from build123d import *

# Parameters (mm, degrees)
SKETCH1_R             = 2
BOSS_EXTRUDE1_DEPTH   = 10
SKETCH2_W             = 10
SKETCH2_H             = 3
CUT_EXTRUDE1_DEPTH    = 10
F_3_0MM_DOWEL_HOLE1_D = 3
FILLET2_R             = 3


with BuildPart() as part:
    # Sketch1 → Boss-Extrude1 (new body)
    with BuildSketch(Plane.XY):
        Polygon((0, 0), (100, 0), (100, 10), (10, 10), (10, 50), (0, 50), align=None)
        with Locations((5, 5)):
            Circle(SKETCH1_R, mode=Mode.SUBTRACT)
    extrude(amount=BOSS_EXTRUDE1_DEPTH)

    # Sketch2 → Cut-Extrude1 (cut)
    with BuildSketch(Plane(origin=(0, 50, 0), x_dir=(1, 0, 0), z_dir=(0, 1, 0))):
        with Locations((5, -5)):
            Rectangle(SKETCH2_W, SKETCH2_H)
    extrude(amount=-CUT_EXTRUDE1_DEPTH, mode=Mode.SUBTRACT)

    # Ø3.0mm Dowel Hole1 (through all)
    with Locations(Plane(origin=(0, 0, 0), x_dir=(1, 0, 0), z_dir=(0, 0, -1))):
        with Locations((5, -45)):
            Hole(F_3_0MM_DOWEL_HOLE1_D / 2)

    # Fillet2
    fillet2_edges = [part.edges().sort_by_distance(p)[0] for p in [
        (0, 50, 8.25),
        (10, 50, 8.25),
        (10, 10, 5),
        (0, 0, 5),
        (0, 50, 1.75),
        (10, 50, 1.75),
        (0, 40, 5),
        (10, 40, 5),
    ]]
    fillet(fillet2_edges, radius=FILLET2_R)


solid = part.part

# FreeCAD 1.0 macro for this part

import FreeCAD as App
import Part
import Sketcher


def edges_at(feature, points):
    """Names of the edges that pass closest to the given points."""
    edges = feature.Shape.Edges
    near = lambda p: min(range(len(edges)), key=lambda i: edges[i].distToShape(Part.Vertex(*p))[0])
    return sorted({f"Edge{near(p) + 1}" for p in points})


def add_polygon(sketch, points):
    """Adds a closed chain of lines whose ends are joined by coincident constraints."""
    first, n = sketch.GeometryCount, len(points)
    for a, b in zip(points, points[1:] + points[:1]):
        sketch.addGeometry(Part.LineSegment(App.Vector(*a, 0), App.Vector(*b, 0)), False)
    for i in range(n):
        sketch.addConstraint(Sketcher.Constraint("Coincident", first + i, 2, first + (i + 1) % n, 1))

doc = App.newDocument("Part")
body = doc.addObject("PartDesign::Body", "Body")

sketch1 = doc.addObject("Sketcher::SketchObject", "Sketch")
body.addObject(sketch1)
sketch1.AttachmentSupport = (doc.XY_Plane, [""])
sketch1.MapMode = "FlatFace"
add_polygon(sketch1, [(0, 0), (100, 0), (100, 10), (10, 10), (10, 50), (0, 50)])
sketch1.addGeometry(Part.Circle(App.Vector(5, 5, 0), App.Vector(0, 0, 1), 2), False)
sketch1.addConstraint([
    Sketcher.Constraint("Horizontal", 0),
    Sketcher.Constraint("Vertical", 1),
    Sketcher.Constraint("Horizontal", 2),
    Sketcher.Constraint("Vertical", 3),
    Sketcher.Constraint("Horizontal", 4),
    Sketcher.Constraint("Vertical", 5),
    Sketcher.Constraint("Coincident", 5, 2, -1, 1),
    Sketcher.Constraint("Equal", 4, 1),
    Sketcher.Constraint("Diameter", 6, 4.0),
    Sketcher.Constraint("DistanceX", 0, 1, 0, 2, 100.0),
    Sketcher.Constraint("DistanceX", 2, 2, 2, 1, 90.0),
    Sketcher.Constraint("DistanceY", 3, 1, 3, 2, 40.0),
    Sketcher.Constraint("DistanceX", -1, 1, 6, 3, 5.0),
    Sketcher.Constraint("DistanceY", -1, 1, 6, 3, 5.0),
])
pad1 = doc.addObject("PartDesign::Pad", "Pad")
body.addObject(pad1)
pad1.Profile = sketch1
pad1.Length = 10

sketch2 = doc.addObject("Sketcher::SketchObject", "Sketch001")
body.addObject(sketch2)
sketch2.AttachmentSupport = (doc.XZ_Plane, [""])
sketch2.MapMode = "FlatFace"
sketch2.AttachmentOffset = App.Placement(App.Vector(0, 0, -50), App.Rotation())
add_polygon(sketch2, [(0, 3.5), (0, 6.5), (10, 6.5), (10, 3.5)])
sketch2.addConstraint([
    Sketcher.Constraint("Vertical", 0),
    Sketcher.Constraint("Horizontal", 1),
    Sketcher.Constraint("Vertical", 2),
    Sketcher.Constraint("Horizontal", 3),
    Sketcher.Constraint("PointOnObject", 0, 2, -2),
    Sketcher.Constraint("DistanceX", 1, 1, 1, 2, 10.0),
    Sketcher.Constraint("DistanceY", 0, 1, 0, 2, 3.0),
    Sketcher.Constraint("DistanceY", -1, 1, 0, 2, 6.5),
])
pocket1 = doc.addObject("PartDesign::Pocket", "Pocket")
body.addObject(pocket1)
pocket1.Profile = sketch2
pocket1.Length = 10
pocket1.Reversed = True

sketch3 = doc.addObject("Sketcher::SketchObject", "Sketch002")
body.addObject(sketch3)
sketch3.AttachmentSupport = (doc.XY_Plane, [""])
sketch3.MapMode = "FlatFace"
sketch3.addGeometry(Part.Circle(App.Vector(5, 45, 0), App.Vector(0, 0, 1), 1.5), False)
sketch3.addConstraint([
    Sketcher.Constraint("Diameter", 0, 3.0),
    Sketcher.Constraint("DistanceX", -1, 1, 0, 3, 5.0),
    Sketcher.Constraint("DistanceY", -1, 1, 0, 3, 45.0),
])
doc.recompute()
hole = doc.addObject("PartDesign::Hole", "Hole")
body.addObject(hole)
hole.Profile = sketch3
hole.ThreadType = "None"
hole.Diameter = 3
hole.DepthType = "ThroughAll"
hole.Reversed = True
doc.recompute()

fillet = doc.addObject("PartDesign::Fillet", "Fillet")
body.addObject(fillet)
fillet.Base = (hole, edges_at(hole, [
    (0, 50, 8.25),
    (10, 50, 8.25),
    (10, 10, 5),
    (0, 0, 5),
    (0, 50, 1.75),
    (10, 50, 1.75),
    (0, 40, 5),
    (10, 40, 5),
]))
fillet.Radius = 3

doc.recompute()
